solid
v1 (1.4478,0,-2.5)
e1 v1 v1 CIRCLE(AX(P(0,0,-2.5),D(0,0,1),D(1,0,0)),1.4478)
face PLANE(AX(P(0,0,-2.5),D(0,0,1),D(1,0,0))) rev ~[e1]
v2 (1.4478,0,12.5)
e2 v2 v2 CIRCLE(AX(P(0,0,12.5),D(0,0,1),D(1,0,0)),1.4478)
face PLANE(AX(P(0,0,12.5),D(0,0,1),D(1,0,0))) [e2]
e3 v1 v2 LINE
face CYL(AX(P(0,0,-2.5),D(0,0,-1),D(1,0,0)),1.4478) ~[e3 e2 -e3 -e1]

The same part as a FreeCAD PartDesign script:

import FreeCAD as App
import Part
import Sketcher

V = App.Vector
Q = App.Units.Quantity

doc = App.newDocument("Part")
params = doc.addObject("Spreadsheet::Sheet", "Params")
for row, (alias, value) in enumerate([
    ("pad1_length", "15 mm"),
], start=1):
    params.set(f"A{row}", alias)
    params.set(f"B{row}", "=" + value)
    params.setAlias(f"B{row}", alias)

body = doc.addObject("PartDesign::Body", "Body")

# Sketch on XY plane
sketch1 = body.newObject("Sketcher::SketchObject", "Sketch")
sketch1.AttachmentSupport = (doc.getObject("XY_Plane"), [""])
sketch1.MapMode = "FlatFace"
sketch1.AttachmentOffset = App.Placement(V(0, 0, -2.5), App.Rotation())
sketch1.addGeometry(Part.Circle(V(0, 0, 0), V(0, 0, 1), 1.4), False)
sketch1.addConstraint(Sketcher.Constraint("Coincident", 0, 3, -1, 1))
sketch1.addConstraint(Sketcher.Constraint("Diameter", 0, Q("2.8956 mm")))
pad1 = body.newObject("PartDesign::Pad", "Pad")
pad1.Profile = sketch1
pad1.setExpression("Length", "Params.pad1_length")

doc.recompute()
